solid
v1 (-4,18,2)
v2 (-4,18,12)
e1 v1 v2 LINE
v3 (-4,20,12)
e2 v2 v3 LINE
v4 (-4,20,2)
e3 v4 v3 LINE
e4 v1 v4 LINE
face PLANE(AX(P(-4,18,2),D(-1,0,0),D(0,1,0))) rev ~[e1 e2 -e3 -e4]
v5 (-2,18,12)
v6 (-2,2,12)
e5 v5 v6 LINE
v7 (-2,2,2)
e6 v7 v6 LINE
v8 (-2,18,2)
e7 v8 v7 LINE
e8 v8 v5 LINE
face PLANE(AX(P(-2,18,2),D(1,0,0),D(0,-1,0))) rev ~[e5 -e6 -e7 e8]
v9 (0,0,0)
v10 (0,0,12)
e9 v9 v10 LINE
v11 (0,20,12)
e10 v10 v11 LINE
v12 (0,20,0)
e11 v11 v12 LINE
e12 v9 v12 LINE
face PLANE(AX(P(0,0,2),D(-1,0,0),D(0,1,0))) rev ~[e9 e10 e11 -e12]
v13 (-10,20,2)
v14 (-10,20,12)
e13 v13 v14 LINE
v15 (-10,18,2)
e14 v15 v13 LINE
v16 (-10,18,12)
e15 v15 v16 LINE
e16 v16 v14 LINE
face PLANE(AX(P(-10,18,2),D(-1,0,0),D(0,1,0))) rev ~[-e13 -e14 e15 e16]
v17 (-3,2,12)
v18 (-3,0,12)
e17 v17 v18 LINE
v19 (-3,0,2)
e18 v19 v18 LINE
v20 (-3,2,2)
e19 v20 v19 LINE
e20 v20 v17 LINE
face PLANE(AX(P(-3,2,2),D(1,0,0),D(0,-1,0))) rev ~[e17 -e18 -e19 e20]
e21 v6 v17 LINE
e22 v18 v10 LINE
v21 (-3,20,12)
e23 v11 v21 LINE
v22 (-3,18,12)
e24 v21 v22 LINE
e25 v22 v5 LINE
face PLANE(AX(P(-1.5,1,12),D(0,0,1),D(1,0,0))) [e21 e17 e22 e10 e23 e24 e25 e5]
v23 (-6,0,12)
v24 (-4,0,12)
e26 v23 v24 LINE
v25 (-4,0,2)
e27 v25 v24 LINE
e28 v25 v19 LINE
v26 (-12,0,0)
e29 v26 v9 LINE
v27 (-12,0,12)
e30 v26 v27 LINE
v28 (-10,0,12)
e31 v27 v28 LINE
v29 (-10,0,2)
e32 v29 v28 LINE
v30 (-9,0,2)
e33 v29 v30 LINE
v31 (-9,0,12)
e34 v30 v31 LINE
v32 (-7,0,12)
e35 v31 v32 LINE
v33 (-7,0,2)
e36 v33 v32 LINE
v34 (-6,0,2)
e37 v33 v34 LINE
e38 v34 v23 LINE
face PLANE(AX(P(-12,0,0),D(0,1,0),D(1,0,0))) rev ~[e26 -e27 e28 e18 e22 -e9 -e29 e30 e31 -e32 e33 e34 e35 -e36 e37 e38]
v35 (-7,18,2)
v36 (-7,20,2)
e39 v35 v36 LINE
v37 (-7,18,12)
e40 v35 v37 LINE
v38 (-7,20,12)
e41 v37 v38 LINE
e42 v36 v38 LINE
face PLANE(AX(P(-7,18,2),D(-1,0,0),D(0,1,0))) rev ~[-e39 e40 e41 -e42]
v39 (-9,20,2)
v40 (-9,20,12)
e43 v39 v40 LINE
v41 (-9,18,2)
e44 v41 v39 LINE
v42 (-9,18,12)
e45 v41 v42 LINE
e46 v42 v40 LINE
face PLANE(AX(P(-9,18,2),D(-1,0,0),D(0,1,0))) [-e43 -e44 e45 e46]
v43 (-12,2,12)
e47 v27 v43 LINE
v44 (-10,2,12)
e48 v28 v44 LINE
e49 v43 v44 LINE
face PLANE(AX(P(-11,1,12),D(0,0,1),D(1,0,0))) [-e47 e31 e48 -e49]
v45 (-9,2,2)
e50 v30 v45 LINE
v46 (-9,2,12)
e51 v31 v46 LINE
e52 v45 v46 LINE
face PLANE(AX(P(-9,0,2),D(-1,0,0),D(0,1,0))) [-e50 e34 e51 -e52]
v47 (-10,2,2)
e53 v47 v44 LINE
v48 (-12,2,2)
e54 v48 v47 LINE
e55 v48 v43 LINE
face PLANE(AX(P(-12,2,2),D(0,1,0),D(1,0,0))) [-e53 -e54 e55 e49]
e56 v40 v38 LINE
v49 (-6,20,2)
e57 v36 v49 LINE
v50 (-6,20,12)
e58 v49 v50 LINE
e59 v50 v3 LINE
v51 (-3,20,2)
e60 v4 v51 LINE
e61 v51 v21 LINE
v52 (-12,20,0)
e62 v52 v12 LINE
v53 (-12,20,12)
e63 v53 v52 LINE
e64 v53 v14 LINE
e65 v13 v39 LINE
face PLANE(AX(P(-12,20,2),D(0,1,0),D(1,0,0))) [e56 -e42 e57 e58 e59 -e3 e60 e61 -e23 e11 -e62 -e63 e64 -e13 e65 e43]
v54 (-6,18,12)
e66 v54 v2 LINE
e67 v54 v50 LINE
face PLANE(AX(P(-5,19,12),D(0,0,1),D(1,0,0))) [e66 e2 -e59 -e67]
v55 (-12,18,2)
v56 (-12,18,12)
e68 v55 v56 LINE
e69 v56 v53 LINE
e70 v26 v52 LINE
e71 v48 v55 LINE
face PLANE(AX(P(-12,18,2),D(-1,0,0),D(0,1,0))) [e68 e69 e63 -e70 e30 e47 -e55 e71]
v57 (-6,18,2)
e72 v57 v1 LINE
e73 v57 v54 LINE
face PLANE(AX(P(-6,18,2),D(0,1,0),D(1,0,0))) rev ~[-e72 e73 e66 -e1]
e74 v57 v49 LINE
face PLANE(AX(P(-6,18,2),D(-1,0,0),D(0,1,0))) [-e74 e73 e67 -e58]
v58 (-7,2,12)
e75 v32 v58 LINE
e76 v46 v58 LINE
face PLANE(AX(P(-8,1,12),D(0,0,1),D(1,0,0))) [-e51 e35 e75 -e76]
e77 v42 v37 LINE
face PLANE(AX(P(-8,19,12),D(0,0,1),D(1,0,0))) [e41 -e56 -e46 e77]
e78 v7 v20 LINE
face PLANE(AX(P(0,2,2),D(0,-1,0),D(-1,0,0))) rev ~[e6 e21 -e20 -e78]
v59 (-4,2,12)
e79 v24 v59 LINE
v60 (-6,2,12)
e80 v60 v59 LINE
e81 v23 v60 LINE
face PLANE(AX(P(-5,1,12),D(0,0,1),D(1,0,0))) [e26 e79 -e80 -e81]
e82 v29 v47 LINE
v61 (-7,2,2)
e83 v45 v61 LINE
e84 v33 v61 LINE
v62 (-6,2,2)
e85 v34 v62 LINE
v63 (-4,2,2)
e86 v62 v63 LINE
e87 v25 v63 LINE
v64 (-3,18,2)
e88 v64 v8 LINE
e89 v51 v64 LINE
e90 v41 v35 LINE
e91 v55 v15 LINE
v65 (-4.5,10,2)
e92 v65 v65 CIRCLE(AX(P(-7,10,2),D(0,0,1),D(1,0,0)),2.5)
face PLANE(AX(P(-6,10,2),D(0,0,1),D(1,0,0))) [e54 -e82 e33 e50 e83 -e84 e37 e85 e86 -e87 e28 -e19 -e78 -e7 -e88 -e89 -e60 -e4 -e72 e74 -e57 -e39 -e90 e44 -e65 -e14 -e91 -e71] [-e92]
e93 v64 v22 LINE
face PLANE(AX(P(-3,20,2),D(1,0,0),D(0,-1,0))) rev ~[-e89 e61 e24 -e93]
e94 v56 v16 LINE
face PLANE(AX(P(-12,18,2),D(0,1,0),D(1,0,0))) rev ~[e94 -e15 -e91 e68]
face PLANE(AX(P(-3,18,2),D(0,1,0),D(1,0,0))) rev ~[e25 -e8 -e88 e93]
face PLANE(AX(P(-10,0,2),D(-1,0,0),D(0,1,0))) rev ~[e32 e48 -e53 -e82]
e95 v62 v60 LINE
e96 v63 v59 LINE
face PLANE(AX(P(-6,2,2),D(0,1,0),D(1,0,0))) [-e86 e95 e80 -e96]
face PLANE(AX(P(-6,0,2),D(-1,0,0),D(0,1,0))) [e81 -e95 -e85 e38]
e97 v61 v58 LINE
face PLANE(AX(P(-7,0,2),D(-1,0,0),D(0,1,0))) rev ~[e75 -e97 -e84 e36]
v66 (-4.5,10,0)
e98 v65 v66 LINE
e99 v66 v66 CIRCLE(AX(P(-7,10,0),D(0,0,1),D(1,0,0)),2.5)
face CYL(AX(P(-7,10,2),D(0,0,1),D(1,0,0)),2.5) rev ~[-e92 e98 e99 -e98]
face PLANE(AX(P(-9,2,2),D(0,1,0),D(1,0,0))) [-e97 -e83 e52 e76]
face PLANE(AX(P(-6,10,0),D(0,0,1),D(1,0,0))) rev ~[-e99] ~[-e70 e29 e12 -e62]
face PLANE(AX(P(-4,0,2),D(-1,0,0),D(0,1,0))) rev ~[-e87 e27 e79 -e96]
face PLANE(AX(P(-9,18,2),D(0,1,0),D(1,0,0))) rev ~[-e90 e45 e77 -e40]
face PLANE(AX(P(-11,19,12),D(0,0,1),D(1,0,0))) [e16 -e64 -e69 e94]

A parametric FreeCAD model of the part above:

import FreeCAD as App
import Part
import Sketcher

V = App.Vector

doc = App.newDocument("Part")
body = doc.addObject("PartDesign::Body", "Body")

# Sketch on XY plane
sketch1 = doc.addObject("Sketcher::SketchObject", "Sketch")
body.addObject(sketch1)
sketch1.AttachmentSupport = (doc.XY_Plane, [""])
sketch1.MapMode = "FlatFace"
sketch1.addGeometry(Part.LineSegment(V(-12, 20, 0), V(-12, 0, 0)), False)
sketch1.addGeometry(Part.LineSegment(V(-12, 0, 0), V(0, 0, 0)), False)
sketch1.addGeometry(Part.LineSegment(V(0, 0, 0), V(0, 20, 0)), False)
sketch1.addGeometry(Part.LineSegment(V(0, 20, 0), V(-12, 20, 0)), False)
sketch1.addConstraint(Sketcher.Constraint("Coincident", 0, 2, 1, 1))
sketch1.addConstraint(Sketcher.Constraint("Coincident", 1, 2, 2, 1))
sketch1.addConstraint(Sketcher.Constraint("Coincident", 2, 2, 3, 1))
sketch1.addConstraint(Sketcher.Constraint("Coincident", 3, 2, 0, 1))
sketch1.addConstraint(Sketcher.Constraint("Vertical", 0))
sketch1.addConstraint(Sketcher.Constraint("Horizontal", 1))
sketch1.addConstraint(Sketcher.Constraint("Vertical", 2))
sketch1.addConstraint(Sketcher.Constraint("Horizontal", 3))
sketch1.addConstraint(Sketcher.Constraint("Coincident", 1, 2, -1, 1))
sketch1.addConstraint(Sketcher.Constraint("DistanceX", 1, 1, 1, 2, 12.0))
sketch1.addConstraint(Sketcher.Constraint("DistanceY", 0, 2, 0, 1, 20.0))
pad1 = doc.addObject("PartDesign::Pad", "Pad")
body.addObject(pad1)
pad1.Profile = sketch1
pad1.Length = 2

# Sketch on XY plane
sketch2 = doc.addObject("Sketcher::SketchObject", "Sketch001")
body.addObject(sketch2)
sketch2.AttachmentSupport = (doc.XY_Plane, [""])
sketch2.MapMode = "FlatFace"
sketch2.AttachmentOffset = App.Placement(V(0, 0, 2), App.Rotation())
sketch2.addGeometry(Part.LineSegment(V(-12, 20, 0), V(-12, 18, 0)), False)
sketch2.addGeometry(Part.LineSegment(V(-12, 18, 0), V(-10, 18, 0)), False)
sketch2.addGeometry(Part.LineSegment(V(-10, 18, 0), V(-10, 20, 0)), False)
sketch2.addGeometry(Part.LineSegment(V(-10, 20, 0), V(-12, 20, 0)), False)
sketch2.addGeometry(Part.LineSegment(V(0, 20, 0), V(-3, 20, 0)), False)
sketch2.addGeometry(Part.LineSegment(V(-3, 20, 0), V(-3, 18, 0)), False)
sketch2.addGeometry(Part.LineSegment(V(-3, 18, 0), V(-2, 18, 0)), False)
sketch2.addGeometry(Part.LineSegment(V(-2, 18, 0), V(-2, 2, 0)), False)
sketch2.addGeometry(Part.LineSegment(V(-2, 2, 0), V(0, 2, 0)), False)
sketch2.addGeometry(Part.LineSegment(V(0, 2, 0), V(0, 20, 0)), False)
sketch2.addGeometry(Part.LineSegment(V(-6, 20, 0), V(-6, 18, 0)), False)
sketch2.addGeometry(Part.LineSegment(V(-6, 18, 0), V(-4, 18, 0)), False)
sketch2.addGeometry(Part.LineSegment(V(-4, 18, 0), V(-4, 20, 0)), False)
sketch2.addGeometry(Part.LineSegment(V(-4, 20, 0), V(-6, 20, 0)), False)
sketch2.addGeometry(Part.LineSegment(V(-9, 20, 0), V(-9, 18, 0)), False)
sketch2.addGeometry(Part.LineSegment(V(-9, 18, 0), V(-7, 18, 0)), False)
sketch2.addGeometry(Part.LineSegment(V(-7, 18, 0), V(-7, 20, 0)), False)
sketch2.addGeometry(Part.LineSegment(V(-7, 20, 0), V(-9, 20, 0)), False)
sketch2.addGeometry(Part.LineSegment(V(-12, 2, 0), V(-12, 0, 0)), False)
sketch2.addGeometry(Part.LineSegment(V(-12, 0, 0), V(-10, 0, 0)), False)
sketch2.addGeometry(Part.LineSegment(V(-10, 0, 0), V(-10, 2, 0)), False)
sketch2.addGeometry(Part.LineSegment(V(-10, 2, 0), V(-12, 2, 0)), False)
sketch2.addGeometry(Part.LineSegment(V(-9, 2, 0), V(-9, 0, 0)), False)
sketch2.addGeometry(Part.LineSegment(V(-9, 0, 0), V(-7, 0, 0)), False)
sketch2.addGeometry(Part.LineSegment(V(-7, 0, 0), V(-7, 2, 0)), False)
sketch2.addGeometry(Part.LineSegment(V(-7, 2, 0), V(-9, 2, 0)), False)
sketch2.addConstraint(Sketcher.Constraint("Coincident", 0, 2, 1, 1))
sketch2.addConstraint(Sketcher.Constraint("Coincident", 1, 2, 2, 1))
sketch2.addConstraint(Sketcher.Constraint("Coincident", 2, 2, 3, 1))
sketch2.addConstraint(Sketcher.Constraint("Coincident", 3, 2, 0, 1))
sketch2.addConstraint(Sketcher.Constraint("Coincident", 4, 2, 5, 1))
sketch2.addConstraint(Sketcher.Constraint("Coincident", 5, 2, 6, 1))
sketch2.addConstraint(Sketcher.Constraint("Coincident", 6, 2, 7, 1))
sketch2.addConstraint(Sketcher.Constraint("Coincident", 7, 2, 8, 1))
sketch2.addConstraint(Sketcher.Constraint("Coincident", 8, 2, 9, 1))
sketch2.addConstraint(Sketcher.Constraint("Coincident", 9, 2, 4, 1))
sketch2.addConstraint(Sketcher.Constraint("Coincident", 10, 2, 11, 1))
sketch2.addConstraint(Sketcher.Constraint("Coincident", 11, 2, 12, 1))
sketch2.addConstraint(Sketcher.Constraint("Coincident", 12, 2, 13, 1))
sketch2.addConstraint(Sketcher.Constraint("Coincident", 13, 2, 10, 1))
sketch2.addConstraint(Sketcher.Constraint("Coincident", 14, 2, 15, 1))
sketch2.addConstraint(Sketcher.Constraint("Coincident", 15, 2, 16, 1))
sketch2.addConstraint(Sketcher.Constraint("Coincident", 16, 2, 17, 1))
sketch2.addConstraint(Sketcher.Constraint("Coincident", 17, 2, 14, 1))
sketch2.addConstraint(Sketcher.Constraint("Coincident", 18, 2, 19, 1))
sketch2.addConstraint(Sketcher.Constraint("Coincident", 19, 2, 20, 1))
sketch2.addConstraint(Sketcher.Constraint("Coincident", 20, 2, 21, 1))
sketch2.addConstraint(Sketcher.Constraint("Coincident", 21, 2, 18, 1))
sketch2.addConstraint(Sketcher.Constraint("Coincident", 22, 2, 23, 1))
sketch2.addConstraint(Sketcher.Constraint("Coincident", 23, 2, 24, 1))
sketch2.addConstraint(Sketcher.Constraint("Coincident", 24, 2, 25, 1))
sketch2.addConstraint(Sketcher.Constraint("Coincident", 25, 2, 22, 1))
sketch2.addConstraint(Sketcher.Constraint("Vertical", 0))
sketch2.addConstraint(Sketcher.Constraint("Horizontal", 1))
sketch2.addConstraint(Sketcher.Constraint("Vertical", 2))
sketch2.addConstraint(Sketcher.Constraint("Horizontal", 3))
sketch2.addConstraint(Sketcher.Constraint("Horizontal", 4))
sketch2.addConstraint(Sketcher.Constraint("Vertical", 5))
sketch2.addConstraint(Sketcher.Constraint("Horizontal", 6))
sketch2.addConstraint(Sketcher.Constraint("Vertical", 7))
sketch2.addConstraint(Sketcher.Constraint("Horizontal", 8))
sketch2.addConstraint(Sketcher.Constraint("Vertical", 9))
sketch2.addConstraint(Sketcher.Constraint("Vertical", 10))
sketch2.addConstraint(Sketcher.Constraint("Horizontal", 11))
sketch2.addConstraint(Sketcher.Constraint("Vertical", 12))
sketch2.addConstraint(Sketcher.Constraint("Horizontal", 13))
sketch2.addConstraint(Sketcher.Constraint("Vertical", 14))
sketch2.addConstraint(Sketcher.Constraint("Horizontal", 15))
sketch2.addConstraint(Sketcher.Constraint("Vertical", 16))
sketch2.addConstraint(Sketcher.Constraint("Horizontal", 17))
sketch2.addConstraint(Sketcher.Constraint("Vertical", 18))
sketch2.addConstraint(Sketcher.Constraint("Horizontal", 19))
sketch2.addConstraint(Sketcher.Constraint("Vertical", 20))
sketch2.addConstraint(Sketcher.Constraint("Horizontal", 21))
sketch2.addConstraint(Sketcher.Constraint("Vertical", 22))
sketch2.addConstraint(Sketcher.Constraint("Horizontal", 23))
sketch2.addConstraint(Sketcher.Constraint("Vertical", 24))
sketch2.addConstraint(Sketcher.Constraint("Horizontal", 25))
sketch2.addConstraint(Sketcher.Constraint("PointOnObject", 8, 2, -2))
sketch2.addConstraint(Sketcher.Constraint("PointOnObject", 18, 2, -1))
sketch2.addConstraint(Sketcher.Constraint("PointOnObject", 22, 2, -1))
sketch2.addConstraint(Sketcher.Constraint("Horizontal", 3, 2, 4, 2))
sketch2.addConstraint(Sketcher.Constraint("Horizontal", 1, 2, 5, 2))
sketch2.addConstraint(Sketcher.Constraint("Horizontal", 6, 2, 10, 2))
sketch2.addConstraint(Sketcher.Constraint("Horizontal", 9, 2, 12, 2))
sketch2.addConstraint(Sketcher.Constraint("Horizontal", 11, 2, 14, 2))
sketch2.addConstraint(Sketcher.Constraint("Horizontal", 13, 2, 16, 2))
sketch2.addConstraint(Sketcher.Constraint("Horizontal", 8, 2, 20, 2))
sketch2.addConstraint(Sketcher.Constraint("Horizontal", 21, 2, 24, 2))
sketch2.addConstraint(Sketcher.Constraint("Vertical", 3, 2, 18, 2))
sketch2.addConstraint(Sketcher.Constraint("Vertical", 2, 2, 19, 2))
sketch2.addConstraint(Sketcher.Constraint("Vertical", 17, 2, 22, 2))
sketch2.addConstraint(Sketcher.Constraint("Vertical", 16, 2, 23, 2))
sketch2.addConstraint(Sketcher.Constraint("Equal", 3, 8))
sketch2.addConstraint(Sketcher.Constraint("Equal", 8, 11))
sketch2.addConstraint(Sketcher.Constraint("Equal", 13, 15))
sketch2.addConstraint(Sketcher.Constraint("Equal", 25, 0))
sketch2.addConstraint(Sketcher.Constraint("Equal", 16, 18))
sketch2.addConstraint(Sketcher.Constraint("DistanceX", 1, 1, 1, 2, 2.0))
sketch2.addConstraint(Sketcher.Constraint("DistanceX", 4, 2, 4, 1, 3.0))
sketch2.addConstraint(Sketcher.Constraint("DistanceY", 7, 2, 7, 1, 16.0))
sketch2.addConstraint(Sketcher.Constraint("DistanceX", 0, 2, -1, 1, 12.0))
sketch2.addConstraint(Sketcher.Constraint("DistanceX", 10, 2, -1, 1, 6.0))
sketch2.addConstraint(Sketcher.Constraint("DistanceX", 14, 2, -1, 1, 9.0))
pad2 = doc.addObject("PartDesign::Pad", "Pad001")
body.addObject(pad2)
pad2.Profile = sketch2
pad2.Length = 10

# Sketch on XY plane
sketch3 = doc.addObject("Sketcher::SketchObject", "Sketch002")
body.addObject(sketch3)
sketch3.AttachmentSupport = (doc.XY_Plane, [""])
sketch3.MapMode = "FlatFace"
sketch3.AttachmentOffset = App.Placement(V(0, 0, 2), App.Rotation())
sketch3.addGeometry(Part.Circle(V(-7, 10, 0), V(0, 0, 1), 2.5), False)
sketch3.addConstraint(Sketcher.Constraint("Diameter", 0, 5.0))
sketch3.addConstraint(Sketcher.Constraint("DistanceX", 0, 3, -1, 1, 7.0))
sketch3.addConstraint(Sketcher.Constraint("DistanceY", -1, 1, 0, 3, 10.0))
pocket1 = doc.addObject("PartDesign::Pocket", "Pocket")
body.addObject(pocket1)
pocket1.Profile = sketch3
pocket1.Length = 25

# Sketch on XY plane
sketch4 = doc.addObject("Sketcher::SketchObject", "Sketch003")
body.addObject(sketch4)
sketch4.AttachmentSupport = (doc.XY_Plane, [""])
sketch4.MapMode = "FlatFace"
sketch4.AttachmentOffset = App.Placement(V(0, 0, 2), App.Rotation())
sketch4.addGeometry(Part.LineSegment(V(-6, 2, 0), V(-6, 0, 0)), False)
sketch4.addGeometry(Part.LineSegment(V(-6, 0, 0), V(-4, 0, 0)), False)
sketch4.addGeometry(Part.LineSegment(V(-4, 0, 0), V(-4, 2, 0)), False)
sketch4.addGeometry(Part.LineSegment(V(-4, 2, 0), V(-6, 2, 0)), False)
sketch4.addGeometry(Part.LineSegment(V(0, 2, 0), V(-3, 2, 0)), False)
sketch4.addGeometry(Part.LineSegment(V(-3, 2, 0), V(-3, 0, 0)), False)
sketch4.addGeometry(Part.LineSegment(V(-3, 0, 0), V(0, 0, 0)), False)
sketch4.addGeometry(Part.LineSegment(V(0, 0, 0), V(0, 2, 0)), False)
sketch4.addConstraint(Sketcher.Constraint("Coincident", 0, 2, 1, 1))
sketch4.addConstraint(Sketcher.Constraint("Coincident", 1, 2, 2, 1))
sketch4.addConstraint(Sketcher.Constraint("Coincident", 2, 2, 3, 1))
sketch4.addConstraint(Sketcher.Constraint("Coincident", 3, 2, 0, 1))
sketch4.addConstraint(Sketcher.Constraint("Coincident", 4, 2, 5, 1))
sketch4.addConstraint(Sketcher.Constraint("Coincident", 5, 2, 6, 1))
sketch4.addConstraint(Sketcher.Constraint("Coincident", 6, 2, 7, 1))
sketch4.addConstraint(Sketcher.Constraint("Coincident", 7, 2, 4, 1))
sketch4.addConstraint(Sketcher.Constraint("Vertical", 0))
sketch4.addConstraint(Sketcher.Constraint("Horizontal", 1))
sketch4.addConstraint(Sketcher.Constraint("Vertical", 2))
sketch4.addConstraint(Sketcher.Constraint("Horizontal", 3))
sketch4.addConstraint(Sketcher.Constraint("Horizontal", 4))
sketch4.addConstraint(Sketcher.Constraint("Vertical", 5))
sketch4.addConstraint(Sketcher.Constraint("Horizontal", 6))
sketch4.addConstraint(Sketcher.Constraint("Vertical", 7))
sketch4.addConstraint(Sketcher.Constraint("Coincident", 6, 2, -1, 1))
sketch4.addConstraint(Sketcher.Constraint("PointOnObject", 0, 2, -1))
sketch4.addConstraint(Sketcher.Constraint("Horizontal", 3, 2, 4, 2))
sketch4.addConstraint(Sketcher.Constraint("Equal", 3, 0))
sketch4.addConstraint(Sketcher.Constraint("DistanceX", 1, 1, 1, 2, 2.0))
sketch4.addConstraint(Sketcher.Constraint("DistanceX", 4, 2, 4, 1, 3.0))
sketch4.addConstraint(Sketcher.Constraint("DistanceX", 0, 2, -1, 1, 6.0))
pad3 = doc.addObject("PartDesign::Pad", "Pad002")
body.addObject(pad3)
pad3.Profile = sketch4
pad3.Length = 10

doc.recompute()
